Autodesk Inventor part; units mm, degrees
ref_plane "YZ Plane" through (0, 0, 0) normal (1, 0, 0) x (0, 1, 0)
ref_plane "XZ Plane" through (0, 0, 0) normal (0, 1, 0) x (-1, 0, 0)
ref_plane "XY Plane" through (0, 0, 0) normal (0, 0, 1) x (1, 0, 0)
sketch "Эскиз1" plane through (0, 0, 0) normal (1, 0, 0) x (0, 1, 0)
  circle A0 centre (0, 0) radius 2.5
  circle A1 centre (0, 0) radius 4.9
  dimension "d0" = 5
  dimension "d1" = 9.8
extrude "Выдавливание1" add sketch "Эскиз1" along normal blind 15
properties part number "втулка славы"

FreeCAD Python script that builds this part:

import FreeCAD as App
import Part
import Sketcher

V = App.Vector
Q = App.Units.Quantity

doc = App.newDocument("Part")
params = doc.addObject("Spreadsheet::Sheet", "Params")
for row, (alias, value) in enumerate([
    ("sketch1_diameter", "5 mm"),
    ("sketch1_diameter2", "9.8 mm"),
    ("pad1_length", "15 mm"),
], start=1):
    params.set(f"A{row}", alias)
    params.set(f"B{row}", "=" + value)
    params.setAlias(f"B{row}", alias)

body = doc.addObject("PartDesign::Body", "Body")

# Sketch on YZ plane
sketch1 = doc.addObject("Sketcher::SketchObject", "Sketch")
body.addObject(sketch1)
sketch1.AttachmentSupport = (doc.YZ_Plane, [""])
sketch1.MapMode = "FlatFace"
sketch1.addGeometry([
    Part.Circle(V(0, 0, 0), V(0, 0, 1), 4.9),
    Part.Circle(V(0, 0, 0), V(0, 0, 1), 2.5),
], False)
sketch1.addConstraint([
    Sketcher.Constraint("Coincident", 0, 3, -1, 1),
    Sketcher.Constraint("Coincident", 1, 3, -1, 1),
    Sketcher.Constraint("Diameter", 1, Q("5 mm")),
    Sketcher.Constraint("Diameter", 0, Q("9.8 mm")),
])
sketch1.setExpression("Constraints[2]", "Params.sketch1_diameter")
sketch1.setExpression("Constraints[3]", "Params.sketch1_diameter2")
pad1 = doc.addObject("PartDesign::Pad", "Pad")
body.addObject(pad1)
pad1.Profile = sketch1
pad1.setExpression("Length", "Params.pad1_length")

doc.recompute()
